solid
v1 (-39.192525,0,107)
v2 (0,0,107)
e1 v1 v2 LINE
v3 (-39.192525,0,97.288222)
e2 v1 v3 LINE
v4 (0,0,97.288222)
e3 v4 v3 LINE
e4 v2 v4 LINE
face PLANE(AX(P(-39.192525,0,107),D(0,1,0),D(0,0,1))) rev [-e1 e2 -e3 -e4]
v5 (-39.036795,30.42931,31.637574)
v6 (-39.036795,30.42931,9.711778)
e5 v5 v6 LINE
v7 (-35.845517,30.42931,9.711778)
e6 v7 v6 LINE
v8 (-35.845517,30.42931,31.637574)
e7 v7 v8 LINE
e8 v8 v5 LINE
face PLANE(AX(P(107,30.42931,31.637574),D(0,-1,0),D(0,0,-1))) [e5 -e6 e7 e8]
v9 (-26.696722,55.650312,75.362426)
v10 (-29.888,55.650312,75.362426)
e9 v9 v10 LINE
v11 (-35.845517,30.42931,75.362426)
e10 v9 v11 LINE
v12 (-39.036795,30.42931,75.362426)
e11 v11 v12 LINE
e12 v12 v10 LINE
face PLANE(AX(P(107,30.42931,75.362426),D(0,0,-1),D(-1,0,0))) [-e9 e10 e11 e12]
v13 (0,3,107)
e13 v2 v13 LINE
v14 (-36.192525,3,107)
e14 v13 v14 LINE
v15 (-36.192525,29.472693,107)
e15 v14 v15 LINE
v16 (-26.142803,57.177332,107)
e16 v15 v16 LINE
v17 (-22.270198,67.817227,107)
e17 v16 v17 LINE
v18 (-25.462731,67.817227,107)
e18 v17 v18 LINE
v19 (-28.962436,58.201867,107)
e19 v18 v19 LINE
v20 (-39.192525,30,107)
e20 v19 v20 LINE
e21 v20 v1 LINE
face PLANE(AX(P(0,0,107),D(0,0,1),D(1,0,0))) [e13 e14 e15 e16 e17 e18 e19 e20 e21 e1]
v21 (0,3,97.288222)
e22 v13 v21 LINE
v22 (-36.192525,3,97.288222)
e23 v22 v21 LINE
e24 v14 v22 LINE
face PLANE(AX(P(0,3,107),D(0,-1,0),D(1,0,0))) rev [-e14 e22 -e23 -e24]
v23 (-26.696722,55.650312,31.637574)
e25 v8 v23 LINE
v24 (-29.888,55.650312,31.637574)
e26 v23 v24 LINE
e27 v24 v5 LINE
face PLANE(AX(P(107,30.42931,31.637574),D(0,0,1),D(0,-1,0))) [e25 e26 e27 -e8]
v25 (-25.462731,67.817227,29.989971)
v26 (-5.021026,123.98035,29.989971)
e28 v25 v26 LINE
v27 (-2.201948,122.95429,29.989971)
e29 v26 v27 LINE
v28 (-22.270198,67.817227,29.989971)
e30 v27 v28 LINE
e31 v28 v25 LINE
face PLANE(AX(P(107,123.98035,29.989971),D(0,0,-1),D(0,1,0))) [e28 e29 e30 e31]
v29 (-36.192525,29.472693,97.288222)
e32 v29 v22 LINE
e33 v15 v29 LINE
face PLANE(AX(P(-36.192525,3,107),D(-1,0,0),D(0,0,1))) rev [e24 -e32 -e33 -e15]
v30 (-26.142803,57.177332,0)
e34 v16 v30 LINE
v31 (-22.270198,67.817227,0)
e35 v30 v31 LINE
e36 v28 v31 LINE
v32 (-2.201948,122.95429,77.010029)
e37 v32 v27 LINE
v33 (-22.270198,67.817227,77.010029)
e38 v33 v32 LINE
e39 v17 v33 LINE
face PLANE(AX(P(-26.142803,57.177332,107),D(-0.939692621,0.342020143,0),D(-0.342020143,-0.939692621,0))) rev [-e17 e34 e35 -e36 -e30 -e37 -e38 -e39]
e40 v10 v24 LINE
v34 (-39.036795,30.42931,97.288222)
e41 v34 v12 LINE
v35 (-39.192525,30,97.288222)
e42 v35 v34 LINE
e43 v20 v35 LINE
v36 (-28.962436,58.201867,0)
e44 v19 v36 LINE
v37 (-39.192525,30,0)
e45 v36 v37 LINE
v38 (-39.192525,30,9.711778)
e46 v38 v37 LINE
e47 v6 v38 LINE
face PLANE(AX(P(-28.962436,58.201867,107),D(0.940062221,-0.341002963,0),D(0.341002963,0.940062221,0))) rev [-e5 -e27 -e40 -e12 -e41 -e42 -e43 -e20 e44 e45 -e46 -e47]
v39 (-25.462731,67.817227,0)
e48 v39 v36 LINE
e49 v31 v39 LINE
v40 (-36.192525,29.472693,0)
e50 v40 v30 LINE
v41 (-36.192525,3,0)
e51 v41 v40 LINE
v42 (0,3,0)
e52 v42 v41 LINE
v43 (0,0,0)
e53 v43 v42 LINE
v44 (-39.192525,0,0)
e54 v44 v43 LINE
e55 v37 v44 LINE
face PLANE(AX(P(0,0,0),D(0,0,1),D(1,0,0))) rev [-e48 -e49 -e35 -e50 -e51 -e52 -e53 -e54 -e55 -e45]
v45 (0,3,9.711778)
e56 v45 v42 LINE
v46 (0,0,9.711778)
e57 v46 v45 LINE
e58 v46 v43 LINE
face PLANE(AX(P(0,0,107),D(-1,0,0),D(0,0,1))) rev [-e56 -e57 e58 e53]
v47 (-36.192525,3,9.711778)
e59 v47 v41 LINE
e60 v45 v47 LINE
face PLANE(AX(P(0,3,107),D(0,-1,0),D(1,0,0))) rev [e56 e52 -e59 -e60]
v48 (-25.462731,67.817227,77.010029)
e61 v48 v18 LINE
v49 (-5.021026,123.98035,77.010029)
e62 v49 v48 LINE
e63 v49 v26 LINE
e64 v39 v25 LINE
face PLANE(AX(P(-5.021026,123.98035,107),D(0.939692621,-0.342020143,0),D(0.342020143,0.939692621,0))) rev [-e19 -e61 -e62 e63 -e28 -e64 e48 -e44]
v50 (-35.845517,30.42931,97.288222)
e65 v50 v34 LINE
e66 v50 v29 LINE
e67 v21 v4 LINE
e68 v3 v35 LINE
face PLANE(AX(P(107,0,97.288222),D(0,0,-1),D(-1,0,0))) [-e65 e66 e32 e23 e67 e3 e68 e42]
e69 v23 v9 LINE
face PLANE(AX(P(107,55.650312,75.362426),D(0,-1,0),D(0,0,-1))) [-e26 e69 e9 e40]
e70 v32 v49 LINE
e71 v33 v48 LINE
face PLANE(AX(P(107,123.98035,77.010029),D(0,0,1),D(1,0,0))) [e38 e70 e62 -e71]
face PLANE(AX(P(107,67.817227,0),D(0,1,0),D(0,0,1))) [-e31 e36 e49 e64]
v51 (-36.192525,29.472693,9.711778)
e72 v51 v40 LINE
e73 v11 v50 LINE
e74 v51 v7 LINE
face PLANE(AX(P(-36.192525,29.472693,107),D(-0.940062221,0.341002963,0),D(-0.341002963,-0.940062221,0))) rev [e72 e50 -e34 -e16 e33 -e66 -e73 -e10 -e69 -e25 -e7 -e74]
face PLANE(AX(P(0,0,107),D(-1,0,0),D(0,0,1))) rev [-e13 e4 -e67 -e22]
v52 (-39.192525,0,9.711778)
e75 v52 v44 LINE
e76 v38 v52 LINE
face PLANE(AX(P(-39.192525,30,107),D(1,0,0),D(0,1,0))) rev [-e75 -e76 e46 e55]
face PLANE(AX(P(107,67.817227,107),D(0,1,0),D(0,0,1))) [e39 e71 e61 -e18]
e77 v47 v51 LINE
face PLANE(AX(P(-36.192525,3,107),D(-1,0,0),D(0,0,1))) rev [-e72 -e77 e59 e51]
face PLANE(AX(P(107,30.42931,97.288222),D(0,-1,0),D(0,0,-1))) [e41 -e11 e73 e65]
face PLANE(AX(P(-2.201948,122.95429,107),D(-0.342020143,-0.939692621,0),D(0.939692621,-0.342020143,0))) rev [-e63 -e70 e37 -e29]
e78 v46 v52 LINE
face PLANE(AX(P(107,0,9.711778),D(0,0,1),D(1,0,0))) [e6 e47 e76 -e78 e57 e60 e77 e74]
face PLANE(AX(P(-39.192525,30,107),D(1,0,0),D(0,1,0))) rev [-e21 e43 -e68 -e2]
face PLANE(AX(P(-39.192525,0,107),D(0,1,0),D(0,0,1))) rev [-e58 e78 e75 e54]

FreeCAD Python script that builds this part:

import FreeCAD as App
import Part
import Sketcher
from FreeCAD import Vector
Q = App.Units.Quantity

doc = App.newDocument("Part")
body = doc.addObject("PartDesign::Body", "Body")

# Sketch on XY plane
sketch1 = doc.addObject("Sketcher::SketchObject", "Sketch")
body.addObject(sketch1)
sketch1.AttachmentSupport = (doc.XY_Plane, [""])
sketch1.MapMode = "FlatFace"
sketch1.addGeometry(Part.LineSegment(Vector(0, 0, 0), Vector(0, 3, 0)), False)
sketch1.addGeometry(Part.LineSegment(Vector(0, 3, 0), Vector(-36.192525, 3, 0)), False)
sketch1.addGeometry(Part.LineSegment(Vector(-36.192525, 3, 0), Vector(-36.192525, 29.472693, 0)), False)
sketch1.addGeometry(Part.LineSegment(Vector(-36.192525, 29.472693, 0), Vector(-26.142803, 57.177332, 0)), False)
sketch1.addGeometry(Part.LineSegment(Vector(-26.142803, 57.177332, 0), Vector(-2.201948, 122.95429, 0)), False)
sketch1.addGeometry(Part.LineSegment(Vector(-2.201948, 122.95429, 0), Vector(-5.021026, 123.98035, 0)), False)
sketch1.addGeometry(Part.LineSegment(Vector(-5.021026, 123.98035, 0), Vector(-28.962436, 58.201867, 0)), False)
sketch1.addGeometry(Part.LineSegment(Vector(-28.962436, 58.201867, 0), Vector(-39.192525, 30, 0)), False)
sketch1.addGeometry(Part.LineSegment(Vector(-39.192525, 30, 0), Vector(-39.192525, 0, 0)), False)
sketch1.addGeometry(Part.LineSegment(Vector(-39.192525, 0, 0), Vector(0, 0, 0)), False)
sketch1.addConstraint(Sketcher.Constraint("Coincident", 0, 2, 1, 1))
sketch1.addConstraint(Sketcher.Constraint("Coincident", 1, 2, 2, 1))
sketch1.addConstraint(Sketcher.Constraint("Coincident", 2, 2, 3, 1))
sketch1.addConstraint(Sketcher.Constraint("Coincident", 3, 2, 4, 1))
sketch1.addConstraint(Sketcher.Constraint("Coincident", 4, 2, 5, 1))
sketch1.addConstraint(Sketcher.Constraint("Coincident", 5, 2, 6, 1))
sketch1.addConstraint(Sketcher.Constraint("Coincident", 6, 2, 7, 1))
sketch1.addConstraint(Sketcher.Constraint("Coincident", 7, 2, 8, 1))
sketch1.addConstraint(Sketcher.Constraint("Coincident", 8, 2, 9, 1))
sketch1.addConstraint(Sketcher.Constraint("Coincident", 9, 2, 0, 1))
sketch1.addConstraint(Sketcher.Constraint("Vertical", 0))
sketch1.addConstraint(Sketcher.Constraint("Horizontal", 1))
sketch1.addConstraint(Sketcher.Constraint("Vertical", 2))
sketch1.addConstraint(Sketcher.Constraint("Vertical", 8))
sketch1.addConstraint(Sketcher.Constraint("Horizontal", 9))
sketch1.addConstraint(Sketcher.Constraint("Coincident", 9, 2, -1, 1))
sketch1.addConstraint(Sketcher.Constraint("Perpendicular", 4, 5))
sketch1.addConstraint(Sketcher.Constraint("Perpendicular", 5, 6))
sketch1.addConstraint(Sketcher.Constraint("Parallel", 3, 7))
sketch1.addConstraint(Sketcher.Constraint("DistanceY", 0, 1, 0, 2, Q("3 mm")))
sketch1.addConstraint(Sketcher.Constraint("DistanceY", 8, 2, 8, 1, Q("30 mm")))
sketch1.addConstraint(Sketcher.Constraint("Angle", 4, Q("70 deg")))
sketch1.addConstraint(Sketcher.Constraint("Distance", 5, Q("3 mm")))
sketch1.addConstraint(Sketcher.Constraint("Distance", 6, Q("70 mm")))
sketch1.addConstraint(Sketcher.Constraint("Distance", 7, Q("30 mm")))
sketch1.addConstraint(Sketcher.Constraint("DistanceX", 7, 2, 2, 2, Q("3 mm")))
sketch1.addConstraint(Sketcher.Constraint("DistanceX", 2, 2, 5, 2, Q("31.171499 mm")))
sketch1.addConstraint(Sketcher.Constraint("Distance", 3, Q("29.471069 mm")))
sketch1.addConstraint(Sketcher.Constraint("DistanceX", 1, 2, 1, 1, Q("36.192525 mm")))
pad1 = doc.addObject("PartDesign::Pad", "Pad")
body.addObject(pad1)
pad1.Profile = sketch1
pad1.Length = 107

# Sketch on YZ plane
sketch2 = doc.addObject("Sketcher::SketchObject", "Sketch001")
body.addObject(sketch2)
sketch2.AttachmentSupport = (doc.YZ_Plane, [""])
sketch2.MapMode = "FlatFace"
sketch2.addGeometry(Part.LineSegment(Vector(30.42931, 97.288222, 0), Vector(0, 97.288222, 0)), False)
sketch2.addGeometry(Part.LineSegment(Vector(0, 97.288222, 0), Vector(0, 9.711778, 0)), False)
sketch2.addGeometry(Part.LineSegment(Vector(0, 9.711778, 0), Vector(30.42931, 9.711778, 0)), False)
sketch2.addGeometry(Part.LineSegment(Vector(30.42931, 9.711778, 0), Vector(30.42931, 31.637574, 0)), False)
sketch2.addGeometry(Part.LineSegment(Vector(30.42931, 31.637574, 0), Vector(55.650312, 31.637574, 0)), False)
sketch2.addGeometry(Part.LineSegment(Vector(55.650312, 31.637574, 0), Vector(55.650312, 75.362426, 0)), False)
sketch2.addGeometry(Part.LineSegment(Vector(55.650312, 75.362426, 0), Vector(30.42931, 75.362426, 0)), False)
sketch2.addGeometry(Part.LineSegment(Vector(30.42931, 75.362426, 0), Vector(30.42931, 97.288222, 0)), False)
sketch2.addGeometry(Part.LineSegment(Vector(123.98035, 107, 0), Vector(67.817227, 107, 0)), False)
sketch2.addGeometry(Part.LineSegment(Vector(67.817227, 107, 0), Vector(67.817227, 77.010029, 0)), False)
sketch2.addGeometry(Part.LineSegment(Vector(67.817227, 77.010029, 0), Vector(123.98035, 77.010029, 0)), False)
sketch2.addGeometry(Part.LineSegment(Vector(123.98035, 77.010029, 0), Vector(123.98035, 107, 0)), False)
sketch2.addGeometry(Part.LineSegment(Vector(123.98035, 29.989971, 0), Vector(67.817227, 29.989971, 0)), False)
sketch2.addGeometry(Part.LineSegment(Vector(67.817227, 29.989971, 0), Vector(67.817227, 0, 0)), False)
sketch2.addGeometry(Part.LineSegment(Vector(67.817227, 0, 0), Vector(123.98035, 0, 0)), False)
sketch2.addGeometry(Part.LineSegment(Vector(123.98035, 0, 0), Vector(123.98035, 29.989971, 0)), False)
sketch2.addConstraint(Sketcher.Constraint("Coincident", 0, 2, 1, 1))
sketch2.addConstraint(Sketcher.Constraint("Coincident", 1, 2, 2, 1))
sketch2.addConstraint(Sketcher.Constraint("Coincident", 2, 2, 3, 1))
sketch2.addConstraint(Sketcher.Constraint("Coincident", 3, 2, 4, 1))
sketch2.addConstraint(Sketcher.Constraint("Coincident", 4, 2, 5, 1))
sketch2.addConstraint(Sketcher.Constraint("Coincident", 5, 2, 6, 1))
sketch2.addConstraint(Sketcher.Constraint("Coincident", 6, 2, 7, 1))
sketch2.addConstraint(Sketcher.Constraint("Coincident", 7, 2, 0, 1))
sketch2.addConstraint(Sketcher.Constraint("Coincident", 8, 2, 9, 1))
sketch2.addConstraint(Sketcher.Constraint("Coincident", 9, 2, 10, 1))
sketch2.addConstraint(Sketcher.Constraint("Coincident", 10, 2, 11, 1))
sketch2.addConstraint(Sketcher.Constraint("Coincident", 11, 2, 8, 1))
sketch2.addConstraint(Sketcher.Constraint("Coincident", 12, 2, 13, 1))
sketch2.addConstraint(Sketcher.Constraint("Coincident", 13, 2, 14, 1))
sketch2.addConstraint(Sketcher.Constraint("Coincident", 14, 2, 15, 1))
sketch2.addConstraint(Sketcher.Constraint("Coincident", 15, 2, 12, 1))
sketch2.addConstraint(Sketcher.Constraint("Horizontal", 0))
sketch2.addConstraint(Sketcher.Constraint("Vertical", 1))
sketch2.addConstraint(Sketcher.Constraint("Horizontal", 2))
sketch2.addConstraint(Sketcher.Constraint("Vertical", 3))
sketch2.addConstraint(Sketcher.Constraint("Horizontal", 4))
sketch2.addConstraint(Sketcher.Constraint("Vertical", 5))
sketch2.addConstraint(Sketcher.Constraint("Horizontal", 6))
sketch2.addConstraint(Sketcher.Constraint("Vertical", 7))
sketch2.addConstraint(Sketcher.Constraint("Horizontal", 8))
sketch2.addConstraint(Sketcher.Constraint("Vertical", 9))
sketch2.addConstraint(Sketcher.Constraint("Horizontal", 10))
sketch2.addConstraint(Sketcher.Constraint("Vertical", 11))
sketch2.addConstraint(Sketcher.Constraint("Horizontal", 12))
sketch2.addConstraint(Sketcher.Constraint("Vertical", 13))
sketch2.addConstraint(Sketcher.Constraint("Horizontal", 14))
sketch2.addConstraint(Sketcher.Constraint("Vertical", 15))
sketch2.addConstraint(Sketcher.Constraint("PointOnObject", 0, 2, -2))
sketch2.addConstraint(Sketcher.Constraint("PointOnObject", 13, 2, -1))
sketch2.addConstraint(Sketcher.Constraint("Vertical", 3, 2, 6, 2))
sketch2.addConstraint(Sketcher.Constraint("Vertical", 9, 2, 12, 2))
sketch2.addConstraint(Sketcher.Constraint("Vertical", 11, 2, 14, 2))
sketch2.addConstraint(Sketcher.Constraint("Equal", 3, 7))
sketch2.addConstraint(Sketcher.Constraint("Equal", 11, 13))
sketch2.addConstraint(Sketcher.Constraint("DistanceY", -1, 1, 8, 2, Q("107 mm")))
sketch2.addConstraint(Sketcher.Constraint("DistanceX", 4, 1, 4, 2, Q("25.221002 mm")))
sketch2.addConstraint(Sketcher.Constraint("DistanceX", 0, 2, 0, 1, Q("30.42931 mm")))
sketch2.addConstraint(Sketcher.Constraint("DistanceY", 9, 2, 9, 1, Q("29.989971 mm")))
sketch2.addConstraint(Sketcher.Constraint("DistanceX", 8, 2, 8, 1, Q("56.163123 mm")))
sketch2.addConstraint(Sketcher.Constraint("DistanceY", 1, 2, 1, 1, Q("87.576443 mm")))
sketch2.addConstraint(Sketcher.Constraint("DistanceY", 3, 1, 3, 2, Q("21.925795 mm")))
sketch2.addConstraint(Sketcher.Constraint("DistanceY", -1, 1, 0, 2, Q("97.288222 mm")))
sketch2.addConstraint(Sketcher.Constraint("DistanceX", -1, 1, 10, 2, Q("123.98035 mm")))
pocket1 = doc.addObject("PartDesign::Pocket", "Pocket")
body.addObject(pocket1)
pocket1.Profile = sketch2
pocket1.Type = "ThroughAll"
pocket1.Midplane = True

doc.recompute()
